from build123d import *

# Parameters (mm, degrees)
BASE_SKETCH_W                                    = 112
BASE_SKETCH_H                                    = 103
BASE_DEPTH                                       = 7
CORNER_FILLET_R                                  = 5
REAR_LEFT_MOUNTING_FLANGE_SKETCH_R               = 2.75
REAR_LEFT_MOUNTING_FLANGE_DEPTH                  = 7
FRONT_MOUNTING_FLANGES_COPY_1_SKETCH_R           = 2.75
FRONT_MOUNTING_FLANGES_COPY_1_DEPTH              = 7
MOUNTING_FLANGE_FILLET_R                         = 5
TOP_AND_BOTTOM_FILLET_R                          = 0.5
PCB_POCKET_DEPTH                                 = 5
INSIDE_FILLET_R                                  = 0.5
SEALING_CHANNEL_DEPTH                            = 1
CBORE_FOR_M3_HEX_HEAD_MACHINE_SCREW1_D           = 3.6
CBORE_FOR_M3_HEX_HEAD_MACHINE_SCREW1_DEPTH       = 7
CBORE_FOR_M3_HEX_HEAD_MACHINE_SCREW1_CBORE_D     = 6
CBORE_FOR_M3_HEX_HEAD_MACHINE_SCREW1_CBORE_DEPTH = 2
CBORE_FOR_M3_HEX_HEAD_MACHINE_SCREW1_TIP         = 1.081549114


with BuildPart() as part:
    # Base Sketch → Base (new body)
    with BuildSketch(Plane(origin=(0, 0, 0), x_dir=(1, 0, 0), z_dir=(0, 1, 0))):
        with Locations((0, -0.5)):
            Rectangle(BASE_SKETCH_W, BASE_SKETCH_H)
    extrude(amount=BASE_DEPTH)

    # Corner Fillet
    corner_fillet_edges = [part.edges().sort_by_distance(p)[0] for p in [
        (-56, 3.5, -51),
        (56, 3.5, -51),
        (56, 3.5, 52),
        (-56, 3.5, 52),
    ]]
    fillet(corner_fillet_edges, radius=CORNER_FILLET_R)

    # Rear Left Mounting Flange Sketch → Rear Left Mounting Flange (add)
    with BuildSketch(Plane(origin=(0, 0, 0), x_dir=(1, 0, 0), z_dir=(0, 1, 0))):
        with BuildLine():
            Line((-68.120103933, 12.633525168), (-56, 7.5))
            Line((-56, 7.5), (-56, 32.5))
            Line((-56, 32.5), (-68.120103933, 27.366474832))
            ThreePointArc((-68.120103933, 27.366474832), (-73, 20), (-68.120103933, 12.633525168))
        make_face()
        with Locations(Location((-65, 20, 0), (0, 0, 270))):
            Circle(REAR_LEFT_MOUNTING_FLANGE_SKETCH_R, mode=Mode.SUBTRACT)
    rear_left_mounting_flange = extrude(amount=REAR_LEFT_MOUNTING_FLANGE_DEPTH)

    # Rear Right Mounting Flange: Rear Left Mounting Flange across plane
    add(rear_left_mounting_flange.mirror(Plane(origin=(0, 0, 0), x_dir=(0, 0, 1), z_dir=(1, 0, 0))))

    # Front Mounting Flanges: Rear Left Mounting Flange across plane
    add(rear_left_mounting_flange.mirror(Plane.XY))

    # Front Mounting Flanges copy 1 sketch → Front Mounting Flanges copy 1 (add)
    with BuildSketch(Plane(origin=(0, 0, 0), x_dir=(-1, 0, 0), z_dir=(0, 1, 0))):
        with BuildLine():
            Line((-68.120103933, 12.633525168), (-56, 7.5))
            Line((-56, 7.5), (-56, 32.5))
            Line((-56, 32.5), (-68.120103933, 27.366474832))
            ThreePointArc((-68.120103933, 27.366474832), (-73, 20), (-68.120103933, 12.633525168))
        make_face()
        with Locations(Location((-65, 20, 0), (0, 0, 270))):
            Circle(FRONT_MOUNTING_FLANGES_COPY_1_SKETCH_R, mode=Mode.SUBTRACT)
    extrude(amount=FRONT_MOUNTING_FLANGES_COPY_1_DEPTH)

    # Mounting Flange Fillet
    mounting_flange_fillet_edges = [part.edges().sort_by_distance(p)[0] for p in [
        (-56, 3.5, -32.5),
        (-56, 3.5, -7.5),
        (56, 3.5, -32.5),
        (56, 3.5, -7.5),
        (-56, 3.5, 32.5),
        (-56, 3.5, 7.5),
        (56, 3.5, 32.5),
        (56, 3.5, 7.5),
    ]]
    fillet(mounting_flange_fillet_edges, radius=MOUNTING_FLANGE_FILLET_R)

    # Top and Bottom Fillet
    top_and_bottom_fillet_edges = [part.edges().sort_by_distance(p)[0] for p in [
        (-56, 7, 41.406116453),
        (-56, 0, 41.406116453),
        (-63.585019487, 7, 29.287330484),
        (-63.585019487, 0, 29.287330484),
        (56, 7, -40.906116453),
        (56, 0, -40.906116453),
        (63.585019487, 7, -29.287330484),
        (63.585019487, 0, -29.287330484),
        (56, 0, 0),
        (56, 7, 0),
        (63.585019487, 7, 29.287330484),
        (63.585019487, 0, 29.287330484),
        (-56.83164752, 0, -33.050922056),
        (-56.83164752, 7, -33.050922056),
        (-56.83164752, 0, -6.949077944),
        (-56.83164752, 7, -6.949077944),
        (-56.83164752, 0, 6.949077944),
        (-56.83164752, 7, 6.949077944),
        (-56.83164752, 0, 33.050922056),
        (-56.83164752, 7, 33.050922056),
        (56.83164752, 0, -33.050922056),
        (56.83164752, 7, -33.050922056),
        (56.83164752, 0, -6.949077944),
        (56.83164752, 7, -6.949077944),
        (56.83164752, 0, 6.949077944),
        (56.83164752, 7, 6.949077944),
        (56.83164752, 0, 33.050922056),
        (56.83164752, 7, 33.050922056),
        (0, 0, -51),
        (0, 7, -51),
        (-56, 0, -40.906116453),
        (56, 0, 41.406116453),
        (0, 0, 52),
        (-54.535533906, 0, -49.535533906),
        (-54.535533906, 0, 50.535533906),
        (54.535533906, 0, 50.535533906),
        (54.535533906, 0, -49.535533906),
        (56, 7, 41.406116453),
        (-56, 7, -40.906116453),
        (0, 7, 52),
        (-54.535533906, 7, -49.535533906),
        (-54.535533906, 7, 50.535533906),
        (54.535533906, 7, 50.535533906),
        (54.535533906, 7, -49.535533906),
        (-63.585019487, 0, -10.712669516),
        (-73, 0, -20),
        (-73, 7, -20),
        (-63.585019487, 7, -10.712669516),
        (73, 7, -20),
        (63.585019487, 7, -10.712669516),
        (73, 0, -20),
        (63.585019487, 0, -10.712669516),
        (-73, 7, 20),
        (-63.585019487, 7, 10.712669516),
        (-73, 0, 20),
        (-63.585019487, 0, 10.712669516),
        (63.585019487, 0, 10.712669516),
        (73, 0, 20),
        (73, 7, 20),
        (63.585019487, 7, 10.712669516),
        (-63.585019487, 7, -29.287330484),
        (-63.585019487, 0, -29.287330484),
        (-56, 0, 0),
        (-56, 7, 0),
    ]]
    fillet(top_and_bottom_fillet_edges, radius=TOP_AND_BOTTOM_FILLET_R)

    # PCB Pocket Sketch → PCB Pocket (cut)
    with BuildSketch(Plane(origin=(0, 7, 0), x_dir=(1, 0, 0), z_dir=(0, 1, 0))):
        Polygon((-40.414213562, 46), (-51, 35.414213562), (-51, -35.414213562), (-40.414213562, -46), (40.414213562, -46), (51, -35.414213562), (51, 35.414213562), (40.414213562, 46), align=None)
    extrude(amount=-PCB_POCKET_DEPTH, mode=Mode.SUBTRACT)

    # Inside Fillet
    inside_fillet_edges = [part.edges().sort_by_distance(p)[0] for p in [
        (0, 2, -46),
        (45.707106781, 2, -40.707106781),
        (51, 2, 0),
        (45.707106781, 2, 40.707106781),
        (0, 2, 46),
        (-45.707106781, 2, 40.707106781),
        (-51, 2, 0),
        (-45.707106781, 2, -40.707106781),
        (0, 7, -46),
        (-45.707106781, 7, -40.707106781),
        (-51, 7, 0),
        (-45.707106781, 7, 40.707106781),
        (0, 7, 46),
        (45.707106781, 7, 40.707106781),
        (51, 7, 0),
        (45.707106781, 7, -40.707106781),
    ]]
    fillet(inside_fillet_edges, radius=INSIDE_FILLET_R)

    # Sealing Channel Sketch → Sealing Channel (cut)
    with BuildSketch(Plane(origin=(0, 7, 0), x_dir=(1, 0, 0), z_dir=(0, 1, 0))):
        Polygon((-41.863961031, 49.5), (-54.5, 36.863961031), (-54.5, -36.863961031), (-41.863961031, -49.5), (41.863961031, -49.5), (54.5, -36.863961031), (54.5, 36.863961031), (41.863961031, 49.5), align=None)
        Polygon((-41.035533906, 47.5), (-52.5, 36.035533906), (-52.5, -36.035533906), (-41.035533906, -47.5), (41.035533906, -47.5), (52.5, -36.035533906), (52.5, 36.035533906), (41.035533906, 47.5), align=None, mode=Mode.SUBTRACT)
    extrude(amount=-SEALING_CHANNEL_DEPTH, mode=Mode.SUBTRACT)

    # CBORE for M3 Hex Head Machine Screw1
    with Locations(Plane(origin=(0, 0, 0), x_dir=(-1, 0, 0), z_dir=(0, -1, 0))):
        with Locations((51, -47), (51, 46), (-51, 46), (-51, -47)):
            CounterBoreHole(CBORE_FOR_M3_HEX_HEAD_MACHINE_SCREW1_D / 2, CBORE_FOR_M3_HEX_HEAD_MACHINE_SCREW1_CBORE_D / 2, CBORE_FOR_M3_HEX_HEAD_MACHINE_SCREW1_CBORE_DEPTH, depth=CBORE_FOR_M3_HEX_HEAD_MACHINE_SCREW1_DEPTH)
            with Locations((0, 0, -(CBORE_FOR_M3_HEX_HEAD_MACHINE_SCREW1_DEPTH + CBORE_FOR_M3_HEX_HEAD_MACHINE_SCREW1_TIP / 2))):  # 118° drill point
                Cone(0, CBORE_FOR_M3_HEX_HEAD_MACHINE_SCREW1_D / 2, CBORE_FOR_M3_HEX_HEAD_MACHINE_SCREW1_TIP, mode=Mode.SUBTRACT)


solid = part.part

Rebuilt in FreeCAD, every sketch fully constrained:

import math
import FreeCAD as App
import Part
import Sketcher


def edges_at(feature, points):
    """Names of the edges that pass closest to the given points."""
    edges = feature.Shape.Edges
    near = lambda p: min(range(len(edges)), key=lambda i: edges[i].distToShape(Part.Vertex(*p))[0])
    return sorted({f"Edge{near(p) + 1}" for p in points})

doc = App.newDocument("Part")
body = doc.addObject("PartDesign::Body", "Body")

sketch1 = body.newObject("Sketcher::SketchObject", "Sketch")
sketch1.AttachmentSupport = (doc.getObject("XZ_Plane"), [""])
sketch1.MapMode = "FlatFace"
sketch1.addGeometry([
    Part.LineSegment(App.Vector(-56, -51, 0), App.Vector(-56, 52, 0)),
    Part.LineSegment(App.Vector(-56, 52, 0), App.Vector(56, 52, 0)),
    Part.LineSegment(App.Vector(56, 52, 0), App.Vector(56, -51, 0)),
    Part.LineSegment(App.Vector(56, -51, 0), App.Vector(-56, -51, 0)),
], False)
sketch1.addConstraint([
    Sketcher.Constraint("Coincident", 0, 2, 1, 1),
    Sketcher.Constraint("Coincident", 1, 2, 2, 1),
    Sketcher.Constraint("Coincident", 2, 2, 3, 1),
    Sketcher.Constraint("Coincident", 3, 2, 0, 1),
    Sketcher.Constraint("Vertical", 0),
    Sketcher.Constraint("Horizontal", 1),
    Sketcher.Constraint("Vertical", 2),
    Sketcher.Constraint("Horizontal", 3),
    Sketcher.Constraint("DistanceX", 1, 1, 1, 2, 112.0),
    Sketcher.Constraint("DistanceY", 0, 1, 0, 2, 103.0),
    Sketcher.Constraint("DistanceX", 0, 2, -1, 1, 56.0),
    Sketcher.Constraint("DistanceY", -1, 1, 0, 2, 52.0),
])
pad1 = body.newObject("PartDesign::Pad", "Pad")
pad1.Profile = sketch1
pad1.Length = 7
pad1.Reversed = True
doc.recompute()

fillet = body.newObject("PartDesign::Fillet", "Fillet")
fillet.Base = (pad1, edges_at(pad1, [
    (-56, 3.5, -51),
    (56, 3.5, -51),
    (56, 3.5, 52),
    (-56, 3.5, 52),
]))
fillet.Radius = 5

sketch2 = body.newObject("Sketcher::SketchObject", "Sketch001")
sketch2.AttachmentSupport = (doc.getObject("XZ_Plane"), [""])
sketch2.MapMode = "FlatFace"
sketch2.addGeometry([
    Part.LineSegment(App.Vector(-68.120104, -12.633525, 0), App.Vector(-56, -7.5, 0)),
    Part.LineSegment(App.Vector(-56, -7.5, 0), App.Vector(-56, -32.5, 0)),
    Part.LineSegment(App.Vector(-56, -32.5, 0), App.Vector(-68.120104, -27.366475, 0)),
    Part.ArcOfCircle(Part.Circle(App.Vector(-65, -20, 0), App.Vector(0, 0, 1), 8), math.radians(112.955308), math.radians(247.044692)),
    Part.Circle(App.Vector(-65, -20, 0), App.Vector(0, 0, 1), 2.75),
], False)
sketch2.addConstraint([
    Sketcher.Constraint("Coincident", 0, 2, 1, 1),
    Sketcher.Constraint("Coincident", 1, 2, 2, 1),
    Sketcher.Constraint("Tangent", 2, 2, 3, 2),
    Sketcher.Constraint("Tangent", 3, 1, 0, 1),
    Sketcher.Constraint("Vertical", 1),
    Sketcher.Constraint("Coincident", 4, 3, 3, 3),
    Sketcher.Constraint("Vertical", 2, 2, 3, 1),
    Sketcher.Constraint("Radius", 3, 8.0),
    Sketcher.Constraint("Diameter", 4, 5.5),
    Sketcher.Constraint("DistanceY", 1, 2, 1, 1, 25.0),
    Sketcher.Constraint("DistanceX", 3, 3, -1, 1, 65.0),
    Sketcher.Constraint("DistanceY", 3, 3, -1, 1, 20.0),
    Sketcher.Constraint("DistanceX", 0, 2, -1, 1, 56.0),
])
pad2 = body.newObject("PartDesign::Pad", "Pad001")
pad2.Profile = sketch2
pad2.Length = 7
pad2.Reversed = True
doc.recompute()

mirrored = body.newObject("PartDesign::Mirrored", "Mirrored")
mirrored.Originals = [pad2]
mirrored.MirrorPlane = (doc.getObject("YZ_Plane"), [""])
body.Tip = mirrored
doc.recompute()

mirrored2 = body.newObject("PartDesign::Mirrored", "Mirrored001")
mirrored2.Originals = [pad2]
mirrored2.MirrorPlane = (doc.getObject("XY_Plane"), [""])
body.Tip = mirrored2

sketch3 = body.newObject("Sketcher::SketchObject", "Sketch002")
sketch3.AttachmentSupport = (doc.getObject("XZ_Plane"), [""])
sketch3.MapMode = "FlatFace"
sketch3.addGeometry([
    Part.LineSegment(App.Vector(68.120104, 12.633525, 0), App.Vector(56, 7.5, 0)),
    Part.LineSegment(App.Vector(56, 7.5, 0), App.Vector(56, 32.5, 0)),
    Part.LineSegment(App.Vector(56, 32.5, 0), App.Vector(68.120104, 27.366475, 0)),
    Part.ArcOfCircle(Part.Circle(App.Vector(65, 20, 0), App.Vector(0, 0, 1), 8), math.radians(-67.044692), math.radians(67.044692)),
    Part.Circle(App.Vector(65, 20, 0), App.Vector(0, 0, 1), 2.75),
], False)
sketch3.addConstraint([
    Sketcher.Constraint("Coincident", 0, 2, 1, 1),
    Sketcher.Constraint("Coincident", 1, 2, 2, 1),
    Sketcher.Constraint("Tangent", 2, 2, 3, 2),
    Sketcher.Constraint("Tangent", 3, 1, 0, 1),
    Sketcher.Constraint("Vertical", 1),
    Sketcher.Constraint("Coincident", 4, 3, 3, 3),
    Sketcher.Constraint("Vertical", 2, 2, 3, 1),
    Sketcher.Constraint("Radius", 3, 8.0),
    Sketcher.Constraint("Diameter", 4, 5.5),
    Sketcher.Constraint("DistanceY", 1, 1, 1, 2, 25.0),
    Sketcher.Constraint("DistanceX", -1, 1, 3, 3, 65.0),
    Sketcher.Constraint("DistanceY", -1, 1, 3, 3, 20.0),
    Sketcher.Constraint("DistanceX", -1, 1, 0, 2, 56.0),
])
pad3 = body.newObject("PartDesign::Pad", "Pad002")
pad3.Profile = sketch3
pad3.Length = 7
pad3.Reversed = True
doc.recompute()

fillet2 = body.newObject("PartDesign::Fillet", "Fillet001")
fillet2.Base = (pad3, edges_at(pad3, [
    (-56, 3.5, -32.5),
    (-56, 3.5, -7.5),
    (56, 3.5, -32.5),
    (56, 3.5, -7.5),
    (-56, 3.5, 32.5),
    (-56, 3.5, 7.5),
    (56, 3.5, 32.5),
    (56, 3.5, 7.5),
]))
fillet2.Radius = 5
doc.recompute()

fillet3 = body.newObject("PartDesign::Fillet", "Fillet002")
fillet3.Base = (fillet2, edges_at(fillet2, [
    (-56, 7, 41.406),
    (-56, 0, 41.406),
    (-63.585, 7, 29.287),
    (-63.585, 0, 29.287),
    (56, 7, -40.906),
    (56, 0, -40.906),
    (63.585, 7, -29.287),
    (63.585, 0, -29.287),
    (56, 0, 0),
    (56, 7, 0),
    (63.585, 7, 29.287),
    (63.585, 0, 29.287),
    (-56.832, 0, -33.051),
    (-56.832, 7, -33.051),
    (-56.832, 0, -6.949),
    (-56.832, 7, -6.949),
    (-56.832, 0, 6.949),
    (-56.832, 7, 6.949),
    (-56.832, 0, 33.051),
    (-56.832, 7, 33.051),
    (56.832, 0, -33.051),
    (56.832, 7, -33.051),
    (56.832, 0, -6.949),
    (56.832, 7, -6.949),
    (56.832, 0, 6.949),
    (56.832, 7, 6.949),
    (56.832, 0, 33.051),
    (56.832, 7, 33.051),
    (0, 0, -51),
    (0, 7, -51),
    (-56, 0, -40.906),
    (56, 0, 41.406),
    (0, 0, 52),
    (-54.536, 0, -49.536),
    (-54.536, 0, 50.536),
    (54.536, 0, 50.536),
    (54.536, 0, -49.536),
    (56, 7, 41.406),
    (-56, 7, -40.906),
    (0, 7, 52),
    (-54.536, 7, -49.536),
    (-54.536, 7, 50.536),
    (54.536, 7, 50.536),
    (54.536, 7, -49.536),
    (-63.585, 0, -10.713),
    (-73, 0, -20),
    (-73, 7, -20),
    (-63.585, 7, -10.713),
    (73, 7, -20),
    (63.585, 7, -10.713),
    (73, 0, -20),
    (63.585, 0, -10.713),
    (-73, 7, 20),
    (-63.585, 7, 10.713),
    (-73, 0, 20),
    (-63.585, 0, 10.713),
    (63.585, 0, 10.713),
    (73, 0, 20),
    (73, 7, 20),
    (63.585, 7, 10.713),
    (-63.585, 7, -29.287),
    (-63.585, 0, -29.287),
    (-56, 0, 0),
    (-56, 7, 0),
]))
fillet3.Radius = 0.5

sketch4 = body.newObject("Sketcher::SketchObject", "Sketch003")
sketch4.AttachmentSupport = (doc.getObject("XZ_Plane"), [""])
sketch4.MapMode = "FlatFace"
sketch4.AttachmentOffset = App.Placement(App.Vector(0, 0, -7), App.Rotation())
sketch4.addGeometry([
    Part.LineSegment(App.Vector(-40.414214, -46, 0), App.Vector(-51, -35.414214, 0)),
    Part.LineSegment(App.Vector(-51, -35.414214, 0), App.Vector(-51, 35.414214, 0)),
    Part.LineSegment(App.Vector(-51, 35.414214, 0), App.Vector(-40.414214, 46, 0)),
    Part.LineSegment(App.Vector(-40.414214, 46, 0), App.Vector(40.414214, 46, 0)),
    Part.LineSegment(App.Vector(40.414214, 46, 0), App.Vector(51, 35.414214, 0)),
    Part.LineSegment(App.Vector(51, 35.414214, 0), App.Vector(51, -35.414214, 0)),
    Part.LineSegment(App.Vector(51, -35.414214, 0), App.Vector(40.414214, -46, 0)),
    Part.LineSegment(App.Vector(40.414214, -46, 0), App.Vector(-40.414214, -46, 0)),
], False)
sketch4.addConstraint([
    Sketcher.Constraint("Coincident", 0, 2, 1, 1),
    Sketcher.Constraint("Coincident", 1, 2, 2, 1),
    Sketcher.Constraint("Coincident", 2, 2, 3, 1),
    Sketcher.Constraint("Coincident", 3, 2, 4, 1),
    Sketcher.Constraint("Coincident", 4, 2, 5, 1),
    Sketcher.Constraint("Coincident", 5, 2, 6, 1),
    Sketcher.Constraint("Coincident", 6, 2, 7, 1),
    Sketcher.Constraint("Coincident", 7, 2, 0, 1),
    Sketcher.Constraint("Vertical", 1),
    Sketcher.Constraint("Horizontal", 3),
    Sketcher.Constraint("Vertical", 5),
    Sketcher.Constraint("Horizontal", 7),
    Sketcher.Constraint("Symmetric", 0, 2, 4, 2, -1, 1),
    Sketcher.Constraint("Symmetric", 2, 2, 6, 2, -1, 1),
    Sketcher.Constraint("Perpendicular", 0, 2),
    Sketcher.Constraint("Perpendicular", 2, 4),
    Sketcher.Constraint("Perpendicular", 4, 6),
    Sketcher.Constraint("Horizontal", 1, 2, 4, 2),
    Sketcher.Constraint("Vertical", 3, 2, 6, 2),
    Sketcher.Constraint("DistanceX", 0, 2, -1, 1, 51.0),
    Sketcher.Constraint("DistanceY", -1, 1, 2, 2, 46.0),
    Sketcher.Constraint("DistanceX", 3, 1, 3, 2, 80.828427),
])
pocket1 = body.newObject("PartDesign::Pocket", "Pocket")
pocket1.Profile = sketch4
pocket1.Length = 5
pocket1.Reversed = True
doc.recompute()

fillet4 = body.newObject("PartDesign::Fillet", "Fillet003")
fillet4.Base = (pocket1, edges_at(pocket1, [
    (0, 2, -46),
    (45.707, 2, -40.707),
    (51, 2, 0),
    (45.707, 2, 40.707),
    (0, 2, 46),
    (-45.707, 2, 40.707),
    (-51, 2, 0),
    (-45.707, 2, -40.707),
    (0, 7, -46),
    (-45.707, 7, -40.707),
    (-51, 7, 0),
    (-45.707, 7, 40.707),
    (0, 7, 46),
    (45.707, 7, 40.707),
    (51, 7, 0),
    (45.707, 7, -40.707),
]))
fillet4.Radius = 0.5

sketch5 = body.newObject("Sketcher::SketchObject", "Sketch004")
sketch5.AttachmentSupport = (doc.getObject("XZ_Plane"), [""])
sketch5.MapMode = "FlatFace"
sketch5.AttachmentOffset = App.Placement(App.Vector(0, 0, -7), App.Rotation())
sketch5.addGeometry([
    Part.LineSegment(App.Vector(-41.863961, -49.5, 0), App.Vector(-54.5, -36.863961, 0)),
    Part.LineSegment(App.Vector(-54.5, -36.863961, 0), App.Vector(-54.5, 36.863961, 0)),
    Part.LineSegment(App.Vector(-54.5, 36.863961, 0), App.Vector(-41.863961, 49.5, 0)),
    Part.LineSegment(App.Vector(-41.863961, 49.5, 0), App.Vector(41.863961, 49.5, 0)),
    Part.LineSegment(App.Vector(41.863961, 49.5, 0), App.Vector(54.5, 36.863961, 0)),
    Part.LineSegment(App.Vector(54.5, 36.863961, 0), App.Vector(54.5, -36.863961, 0)),
    Part.LineSegment(App.Vector(54.5, -36.863961, 0), App.Vector(41.863961, -49.5, 0)),
    Part.LineSegment(App.Vector(41.863961, -49.5, 0), App.Vector(-41.863961, -49.5, 0)),
    Part.LineSegment(App.Vector(-52.5, -36.035534, 0), App.Vector(-41.035534, -47.5, 0)),
    Part.LineSegment(App.Vector(-41.035534, -47.5, 0), App.Vector(41.035534, -47.5, 0)),
    Part.LineSegment(App.Vector(41.035534, -47.5, 0), App.Vector(52.5, -36.035534, 0)),
    Part.LineSegment(App.Vector(52.5, -36.035534, 0), App.Vector(52.5, 36.035534, 0)),
    Part.LineSegment(App.Vector(52.5, 36.035534, 0), App.Vector(41.035534, 47.5, 0)),
    Part.LineSegment(App.Vector(41.035534, 47.5, 0), App.Vector(-41.035534, 47.5, 0)),
    Part.LineSegment(App.Vector(-41.035534, 47.5, 0), App.Vector(-52.5, 36.035534, 0)),
    Part.LineSegment(App.Vector(-52.5, 36.035534, 0), App.Vector(-52.5, -36.035534, 0)),
], False)
sketch5.addConstraint([
    Sketcher.Constraint("Coincident", 0, 2, 1, 1),
    Sketcher.Constraint("Coincident", 1, 2, 2, 1),
    Sketcher.Constraint("Coincident", 2, 2, 3, 1),
    Sketcher.Constraint("Coincident", 3, 2, 4, 1),
    Sketcher.Constraint("Coincident", 4, 2, 5, 1),
    Sketcher.Constraint("Coincident", 5, 2, 6, 1),
    Sketcher.Constraint("Coincident", 6, 2, 7, 1),
    Sketcher.Constraint("Coincident", 7, 2, 0, 1),
    Sketcher.Constraint("Coincident", 8, 2, 9, 1),
    Sketcher.Constraint("Coincident", 9, 2, 10, 1),
    Sketcher.Constraint("Coincident", 10, 2, 11, 1),
    Sketcher.Constraint("Coincident", 11, 2, 12, 1),
    Sketcher.Constraint("Coincident", 12, 2, 13, 1),
    Sketcher.Constraint("Coincident", 13, 2, 14, 1),
    Sketcher.Constraint("Coincident", 14, 2, 15, 1),
    Sketcher.Constraint("Coincident", 15, 2, 8, 1),
    Sketcher.Constraint("Vertical", 1),
    Sketcher.Constraint("Horizontal", 3),
    Sketcher.Constraint("Vertical", 5),
    Sketcher.Constraint("Horizontal", 7),
    Sketcher.Constraint("Horizontal", 9),
    Sketcher.Constraint("Vertical", 11),
    Sketcher.Constraint("Horizontal", 13),
    Sketcher.Constraint("Vertical", 15),
    Sketcher.Constraint("Symmetric", 0, 2, 4, 2, -1, 1),
    Sketcher.Constraint("Symmetric", 2, 2, 6, 2, -1, 1),
    Sketcher.Constraint("Symmetric", 8, 2, 12, 2, -1, 1),
    Sketcher.Constraint("Symmetric", 10, 2, 14, 2, -1, 1),
    Sketcher.Constraint("Perpendicular", 0, 2),
    Sketcher.Constraint("Perpendicular", 2, 4),
    Sketcher.Constraint("Perpendicular", 4, 6),
    Sketcher.Constraint("Perpendicular", 6, 8),
    Sketcher.Constraint("Perpendicular", 8, 10),
    Sketcher.Constraint("Perpendicular", 10, 12),
    Sketcher.Constraint("Perpendicular", 12, 14),
    Sketcher.Constraint("Horizontal", 1, 2, 4, 2),
    Sketcher.Constraint("Horizontal", 11, 2, 14, 2),
    Sketcher.Constraint("Vertical", 3, 2, 6, 2),
    Sketcher.Constraint("DistanceX", 1, 2, 4, 2, 109.0),
    Sketcher.Constraint("DistanceY", 6, 2, 3, 2, 99.0),
    Sketcher.Constraint("DistanceY", 7, 2, 8, 2, 2.0),
    Sketcher.Constraint("DistanceX", 10, 2, 5, 2, 2.0),
    Sketcher.Constraint("DistanceX", 3, 1, 3, 2, 83.727922),
    Sketcher.Constraint("DistanceX", 9, 1, 9, 2, 82.071068),
])
pocket2 = body.newObject("PartDesign::Pocket", "Pocket001")
pocket2.Profile = sketch5
pocket2.Length = 1
pocket2.Reversed = True

sketch6 = body.newObject("Sketcher::SketchObject", "Sketch005")
sketch6.AttachmentSupport = (doc.getObject("XZ_Plane"), [""])
sketch6.MapMode = "FlatFace"
sketch6.addGeometry([
    Part.Circle(App.Vector(-51, 47, 0), App.Vector(0, 0, 1), 1.8),
    Part.Circle(App.Vector(-51, -46, 0), App.Vector(0, 0, 1), 1.8),
    Part.Circle(App.Vector(51, -46, 0), App.Vector(0, 0, 1), 1.8),
    Part.Circle(App.Vector(51, 47, 0), App.Vector(0, 0, 1), 1.8),
], False)
sketch6.addConstraint([
    Sketcher.Constraint("Equal", 0, 1),
    Sketcher.Constraint("Equal", 1, 2),
    Sketcher.Constraint("Equal", 2, 3),
    Sketcher.Constraint("Symmetric", 1, 3, 2, 3, -2),
    Sketcher.Constraint("Symmetric", 0, 3, 3, 3, -2),
    Sketcher.Constraint("Vertical", 0, 3, 1, 3),
    Sketcher.Constraint("Diameter", 0, 3.6),
    Sketcher.Constraint("DistanceX", 0, 3, -1, 1, 51.0),
    Sketcher.Constraint("DistanceY", -1, 1, 0, 3, 47.0),
    Sketcher.Constraint("DistanceY", 1, 3, -1, 1, 46.0),
])
doc.recompute()
hole = body.newObject("PartDesign::Hole", "Hole")
hole.Profile = sketch6
hole.ThreadType = "None"
hole.Diameter = 3.6
hole.DepthType = "Dimension"
hole.Depth = 7
hole.DrillPoint = "Angled"
hole.DrillPointAngle = 118
hole.HoleCutType = "Counterbore"
hole.HoleCutDiameter = 6
hole.HoleCutDepth = 2

doc.recompute()
